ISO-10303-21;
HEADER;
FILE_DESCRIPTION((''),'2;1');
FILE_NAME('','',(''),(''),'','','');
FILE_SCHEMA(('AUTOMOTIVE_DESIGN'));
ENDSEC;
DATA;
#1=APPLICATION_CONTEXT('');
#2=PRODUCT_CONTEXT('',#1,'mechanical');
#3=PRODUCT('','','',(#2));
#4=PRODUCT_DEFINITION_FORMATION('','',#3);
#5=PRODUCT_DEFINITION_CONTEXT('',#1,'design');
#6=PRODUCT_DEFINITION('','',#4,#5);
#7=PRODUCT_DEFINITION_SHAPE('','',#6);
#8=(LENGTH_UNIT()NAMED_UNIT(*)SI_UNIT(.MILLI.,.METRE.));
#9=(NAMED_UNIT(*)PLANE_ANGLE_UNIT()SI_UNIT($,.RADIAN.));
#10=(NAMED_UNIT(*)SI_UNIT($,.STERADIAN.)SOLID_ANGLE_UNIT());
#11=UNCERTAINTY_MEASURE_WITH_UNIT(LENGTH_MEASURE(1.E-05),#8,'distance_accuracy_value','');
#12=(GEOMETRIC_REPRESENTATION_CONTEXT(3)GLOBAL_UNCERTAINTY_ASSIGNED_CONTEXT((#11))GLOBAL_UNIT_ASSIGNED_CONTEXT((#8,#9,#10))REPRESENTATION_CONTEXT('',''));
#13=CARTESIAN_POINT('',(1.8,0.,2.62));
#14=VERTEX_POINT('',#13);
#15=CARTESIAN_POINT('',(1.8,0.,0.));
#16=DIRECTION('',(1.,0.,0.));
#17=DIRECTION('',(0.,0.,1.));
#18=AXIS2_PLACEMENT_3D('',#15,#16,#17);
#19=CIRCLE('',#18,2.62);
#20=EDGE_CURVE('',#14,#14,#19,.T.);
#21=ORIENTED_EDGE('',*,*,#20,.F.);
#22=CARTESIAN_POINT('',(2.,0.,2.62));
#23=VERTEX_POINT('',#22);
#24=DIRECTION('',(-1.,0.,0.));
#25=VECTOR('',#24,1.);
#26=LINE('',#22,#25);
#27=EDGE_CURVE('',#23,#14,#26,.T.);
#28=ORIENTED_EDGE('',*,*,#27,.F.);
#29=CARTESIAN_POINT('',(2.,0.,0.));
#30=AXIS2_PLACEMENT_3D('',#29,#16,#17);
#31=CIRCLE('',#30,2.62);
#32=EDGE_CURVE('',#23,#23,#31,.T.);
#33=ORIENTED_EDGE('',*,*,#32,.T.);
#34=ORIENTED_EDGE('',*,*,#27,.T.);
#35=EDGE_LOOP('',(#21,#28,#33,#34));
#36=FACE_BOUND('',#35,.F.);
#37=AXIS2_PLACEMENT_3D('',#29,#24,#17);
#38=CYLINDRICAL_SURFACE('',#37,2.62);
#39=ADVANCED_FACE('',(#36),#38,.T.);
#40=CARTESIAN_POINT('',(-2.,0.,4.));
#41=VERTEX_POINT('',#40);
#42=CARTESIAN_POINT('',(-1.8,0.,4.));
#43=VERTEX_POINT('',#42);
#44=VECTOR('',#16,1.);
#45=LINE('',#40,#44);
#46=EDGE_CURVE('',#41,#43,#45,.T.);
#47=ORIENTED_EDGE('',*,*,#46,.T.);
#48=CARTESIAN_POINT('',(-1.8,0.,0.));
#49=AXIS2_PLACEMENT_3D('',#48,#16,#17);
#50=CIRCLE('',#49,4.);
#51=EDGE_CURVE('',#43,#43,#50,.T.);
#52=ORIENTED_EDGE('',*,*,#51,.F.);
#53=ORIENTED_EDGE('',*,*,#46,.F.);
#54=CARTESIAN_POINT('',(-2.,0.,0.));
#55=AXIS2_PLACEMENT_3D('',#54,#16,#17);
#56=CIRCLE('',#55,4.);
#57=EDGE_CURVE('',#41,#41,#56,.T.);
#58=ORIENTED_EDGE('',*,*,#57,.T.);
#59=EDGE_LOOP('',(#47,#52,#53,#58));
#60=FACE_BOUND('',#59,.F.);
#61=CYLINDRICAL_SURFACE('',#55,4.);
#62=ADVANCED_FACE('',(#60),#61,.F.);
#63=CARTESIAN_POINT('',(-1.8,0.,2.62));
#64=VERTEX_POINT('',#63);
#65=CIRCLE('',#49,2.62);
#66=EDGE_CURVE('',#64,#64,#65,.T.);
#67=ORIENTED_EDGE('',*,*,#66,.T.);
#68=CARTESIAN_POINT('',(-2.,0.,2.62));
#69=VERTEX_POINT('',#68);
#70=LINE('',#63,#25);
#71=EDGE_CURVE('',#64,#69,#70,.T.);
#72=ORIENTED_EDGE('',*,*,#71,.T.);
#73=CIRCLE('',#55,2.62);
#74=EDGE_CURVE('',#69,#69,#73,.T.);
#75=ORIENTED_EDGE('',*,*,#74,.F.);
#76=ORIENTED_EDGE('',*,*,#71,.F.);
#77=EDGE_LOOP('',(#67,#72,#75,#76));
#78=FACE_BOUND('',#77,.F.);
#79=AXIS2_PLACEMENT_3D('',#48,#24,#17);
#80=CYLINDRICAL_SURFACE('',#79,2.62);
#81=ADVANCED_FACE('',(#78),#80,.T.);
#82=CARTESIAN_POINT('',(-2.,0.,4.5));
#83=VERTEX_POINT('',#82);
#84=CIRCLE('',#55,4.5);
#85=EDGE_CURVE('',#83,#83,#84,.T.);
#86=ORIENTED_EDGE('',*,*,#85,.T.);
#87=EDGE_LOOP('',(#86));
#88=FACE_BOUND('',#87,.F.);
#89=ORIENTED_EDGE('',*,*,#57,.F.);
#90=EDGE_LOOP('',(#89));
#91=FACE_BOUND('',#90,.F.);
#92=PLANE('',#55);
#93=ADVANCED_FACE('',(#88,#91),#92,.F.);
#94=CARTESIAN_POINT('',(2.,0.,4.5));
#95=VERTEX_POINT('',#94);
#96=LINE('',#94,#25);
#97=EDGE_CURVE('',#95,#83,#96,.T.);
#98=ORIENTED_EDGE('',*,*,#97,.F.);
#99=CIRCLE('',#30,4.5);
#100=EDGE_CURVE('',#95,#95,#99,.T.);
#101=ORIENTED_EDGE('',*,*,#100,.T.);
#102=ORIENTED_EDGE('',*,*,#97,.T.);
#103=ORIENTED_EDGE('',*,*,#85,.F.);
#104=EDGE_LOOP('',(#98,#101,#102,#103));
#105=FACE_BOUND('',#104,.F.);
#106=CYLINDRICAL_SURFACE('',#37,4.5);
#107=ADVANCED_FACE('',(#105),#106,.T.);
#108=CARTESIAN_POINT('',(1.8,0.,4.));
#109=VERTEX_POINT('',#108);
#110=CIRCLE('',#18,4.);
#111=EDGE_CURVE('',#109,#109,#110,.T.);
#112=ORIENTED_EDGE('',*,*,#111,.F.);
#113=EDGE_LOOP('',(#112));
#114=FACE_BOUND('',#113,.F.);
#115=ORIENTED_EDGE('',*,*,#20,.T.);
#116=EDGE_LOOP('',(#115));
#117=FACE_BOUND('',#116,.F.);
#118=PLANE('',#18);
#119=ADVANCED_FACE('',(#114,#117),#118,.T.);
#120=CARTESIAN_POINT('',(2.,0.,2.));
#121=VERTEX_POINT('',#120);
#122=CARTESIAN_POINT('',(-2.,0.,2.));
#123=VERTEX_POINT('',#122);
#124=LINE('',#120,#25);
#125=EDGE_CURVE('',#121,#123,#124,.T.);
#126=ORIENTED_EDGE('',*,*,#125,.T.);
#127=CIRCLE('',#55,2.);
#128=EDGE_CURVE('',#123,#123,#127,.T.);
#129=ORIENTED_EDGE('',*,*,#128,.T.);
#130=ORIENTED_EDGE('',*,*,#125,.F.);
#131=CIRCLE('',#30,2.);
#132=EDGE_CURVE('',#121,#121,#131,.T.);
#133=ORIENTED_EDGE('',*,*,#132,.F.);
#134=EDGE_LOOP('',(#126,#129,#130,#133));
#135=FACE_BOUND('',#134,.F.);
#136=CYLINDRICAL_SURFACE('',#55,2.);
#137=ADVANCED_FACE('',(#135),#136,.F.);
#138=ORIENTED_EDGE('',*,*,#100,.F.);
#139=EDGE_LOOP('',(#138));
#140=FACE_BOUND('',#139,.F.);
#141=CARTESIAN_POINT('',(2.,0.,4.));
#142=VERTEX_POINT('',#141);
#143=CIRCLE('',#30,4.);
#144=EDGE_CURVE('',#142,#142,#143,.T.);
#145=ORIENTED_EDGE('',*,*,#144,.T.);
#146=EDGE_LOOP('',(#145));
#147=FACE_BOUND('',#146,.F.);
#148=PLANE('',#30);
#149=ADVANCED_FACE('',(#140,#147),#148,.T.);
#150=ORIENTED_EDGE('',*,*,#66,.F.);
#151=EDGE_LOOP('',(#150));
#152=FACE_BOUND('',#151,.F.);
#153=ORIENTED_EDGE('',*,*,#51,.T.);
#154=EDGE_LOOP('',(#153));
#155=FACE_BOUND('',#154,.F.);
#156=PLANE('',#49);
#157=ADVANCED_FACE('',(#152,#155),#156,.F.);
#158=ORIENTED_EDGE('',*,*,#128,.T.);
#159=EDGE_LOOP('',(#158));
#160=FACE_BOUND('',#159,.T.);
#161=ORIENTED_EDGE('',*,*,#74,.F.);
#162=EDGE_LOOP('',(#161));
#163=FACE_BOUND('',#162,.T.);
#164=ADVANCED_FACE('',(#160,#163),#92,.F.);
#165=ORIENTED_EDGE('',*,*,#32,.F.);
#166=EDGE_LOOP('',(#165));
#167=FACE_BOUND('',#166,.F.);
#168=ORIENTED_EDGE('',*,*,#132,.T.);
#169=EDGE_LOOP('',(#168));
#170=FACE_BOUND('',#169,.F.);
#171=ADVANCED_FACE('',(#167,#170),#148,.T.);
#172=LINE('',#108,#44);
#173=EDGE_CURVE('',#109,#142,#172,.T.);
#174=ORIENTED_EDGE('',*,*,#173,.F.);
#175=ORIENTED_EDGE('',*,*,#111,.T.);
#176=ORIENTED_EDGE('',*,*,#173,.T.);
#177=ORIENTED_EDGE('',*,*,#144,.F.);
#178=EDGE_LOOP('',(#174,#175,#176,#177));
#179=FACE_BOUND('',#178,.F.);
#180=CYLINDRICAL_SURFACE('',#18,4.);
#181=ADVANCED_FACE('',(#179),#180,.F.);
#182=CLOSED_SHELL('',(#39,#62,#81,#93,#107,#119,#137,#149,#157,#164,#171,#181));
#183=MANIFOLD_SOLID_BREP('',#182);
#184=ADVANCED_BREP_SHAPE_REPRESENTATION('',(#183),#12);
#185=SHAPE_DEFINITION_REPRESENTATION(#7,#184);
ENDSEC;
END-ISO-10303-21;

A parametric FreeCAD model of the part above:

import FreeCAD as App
import Part
import Sketcher
from FreeCAD import Vector
Q = App.Units.Quantity


def add_polygon(sketch, points):
    """Adds a closed chain of lines whose ends are joined by coincident constraints."""
    first, n = sketch.GeometryCount, len(points)
    for a, b in zip(points, points[1:] + points[:1]):
        sketch.addGeometry(Part.LineSegment(App.Vector(*a, 0), App.Vector(*b, 0)), False)
    for i in range(n):
        sketch.addConstraint(Sketcher.Constraint("Coincident", first + i, 2, first + (i + 1) % n, 1))

doc = App.newDocument("Part")
body = doc.addObject("PartDesign::Body", "Body")

# Sketch on XZ plane
sketch1 = body.newObject("Sketcher::SketchObject", "Sketch")
sketch1.AttachmentSupport = (doc.getObject("XZ_Plane"), [""])
sketch1.MapMode = "FlatFace"
add_polygon(sketch1, [(-2, 2), (-2, 2.62), (-1.8, 2.62), (-1.8, 4), (-2, 4), (-2, 4.5), (2, 4.5), (2, 4), (1.8, 4), (1.8, 2.62), (2, 2.62), (2, 2)])  # lines 0-11
sketch1.addConstraint(Sketcher.Constraint("Vertical", 0))
sketch1.addConstraint(Sketcher.Constraint("Horizontal", 1))
sketch1.addConstraint(Sketcher.Constraint("Vertical", 2))
sketch1.addConstraint(Sketcher.Constraint("Horizontal", 3))
sketch1.addConstraint(Sketcher.Constraint("Vertical", 4))
sketch1.addConstraint(Sketcher.Constraint("Horizontal", 5))
sketch1.addConstraint(Sketcher.Constraint("Vertical", 6))
sketch1.addConstraint(Sketcher.Constraint("Horizontal", 7))
sketch1.addConstraint(Sketcher.Constraint("Vertical", 8))
sketch1.addConstraint(Sketcher.Constraint("Horizontal", 9))
sketch1.addConstraint(Sketcher.Constraint("Vertical", 10))
sketch1.addConstraint(Sketcher.Constraint("Horizontal", 11))
sketch1.addConstraint(Sketcher.Constraint("Symmetric", 3, 2, 6, 2, -2))
sketch1.addConstraint(Sketcher.Constraint("Symmetric", 1, 2, 8, 2, -2))
sketch1.addConstraint(Sketcher.Constraint("Vertical", 0, 2, 3, 2))
sketch1.addConstraint(Sketcher.Constraint("Vertical", 6, 2, 9, 2))
sketch1.addConstraint(Sketcher.Constraint("DistanceX", 5, 1, 5, 2, Q("4 mm")))
sketch1.addConstraint(Sketcher.Constraint("DistanceX", 1, 1, 1, 2, Q("0.2 mm")))
sketch1.addConstraint(Sketcher.Constraint("DistanceY", 4, 1, 4, 2, Q("0.5 mm")))
sketch1.addConstraint(Sketcher.Constraint("DistanceY", -1, 1, 2, 2, Q("4 mm")))
sketch1.addConstraint(Sketcher.Constraint("DistanceY", 0, 1, 0, 2, Q("0.62 mm")))
sketch1.addConstraint(Sketcher.Constraint("DistanceY", -1, 1, 10, 2, Q("2 mm")))
revolution = body.newObject("PartDesign::Revolution", "Revolution")
revolution.Profile = sketch1
revolution.ReferenceAxis = (sketch1, ["H_Axis"])
revolution.Angle = 360

doc.recompute()
